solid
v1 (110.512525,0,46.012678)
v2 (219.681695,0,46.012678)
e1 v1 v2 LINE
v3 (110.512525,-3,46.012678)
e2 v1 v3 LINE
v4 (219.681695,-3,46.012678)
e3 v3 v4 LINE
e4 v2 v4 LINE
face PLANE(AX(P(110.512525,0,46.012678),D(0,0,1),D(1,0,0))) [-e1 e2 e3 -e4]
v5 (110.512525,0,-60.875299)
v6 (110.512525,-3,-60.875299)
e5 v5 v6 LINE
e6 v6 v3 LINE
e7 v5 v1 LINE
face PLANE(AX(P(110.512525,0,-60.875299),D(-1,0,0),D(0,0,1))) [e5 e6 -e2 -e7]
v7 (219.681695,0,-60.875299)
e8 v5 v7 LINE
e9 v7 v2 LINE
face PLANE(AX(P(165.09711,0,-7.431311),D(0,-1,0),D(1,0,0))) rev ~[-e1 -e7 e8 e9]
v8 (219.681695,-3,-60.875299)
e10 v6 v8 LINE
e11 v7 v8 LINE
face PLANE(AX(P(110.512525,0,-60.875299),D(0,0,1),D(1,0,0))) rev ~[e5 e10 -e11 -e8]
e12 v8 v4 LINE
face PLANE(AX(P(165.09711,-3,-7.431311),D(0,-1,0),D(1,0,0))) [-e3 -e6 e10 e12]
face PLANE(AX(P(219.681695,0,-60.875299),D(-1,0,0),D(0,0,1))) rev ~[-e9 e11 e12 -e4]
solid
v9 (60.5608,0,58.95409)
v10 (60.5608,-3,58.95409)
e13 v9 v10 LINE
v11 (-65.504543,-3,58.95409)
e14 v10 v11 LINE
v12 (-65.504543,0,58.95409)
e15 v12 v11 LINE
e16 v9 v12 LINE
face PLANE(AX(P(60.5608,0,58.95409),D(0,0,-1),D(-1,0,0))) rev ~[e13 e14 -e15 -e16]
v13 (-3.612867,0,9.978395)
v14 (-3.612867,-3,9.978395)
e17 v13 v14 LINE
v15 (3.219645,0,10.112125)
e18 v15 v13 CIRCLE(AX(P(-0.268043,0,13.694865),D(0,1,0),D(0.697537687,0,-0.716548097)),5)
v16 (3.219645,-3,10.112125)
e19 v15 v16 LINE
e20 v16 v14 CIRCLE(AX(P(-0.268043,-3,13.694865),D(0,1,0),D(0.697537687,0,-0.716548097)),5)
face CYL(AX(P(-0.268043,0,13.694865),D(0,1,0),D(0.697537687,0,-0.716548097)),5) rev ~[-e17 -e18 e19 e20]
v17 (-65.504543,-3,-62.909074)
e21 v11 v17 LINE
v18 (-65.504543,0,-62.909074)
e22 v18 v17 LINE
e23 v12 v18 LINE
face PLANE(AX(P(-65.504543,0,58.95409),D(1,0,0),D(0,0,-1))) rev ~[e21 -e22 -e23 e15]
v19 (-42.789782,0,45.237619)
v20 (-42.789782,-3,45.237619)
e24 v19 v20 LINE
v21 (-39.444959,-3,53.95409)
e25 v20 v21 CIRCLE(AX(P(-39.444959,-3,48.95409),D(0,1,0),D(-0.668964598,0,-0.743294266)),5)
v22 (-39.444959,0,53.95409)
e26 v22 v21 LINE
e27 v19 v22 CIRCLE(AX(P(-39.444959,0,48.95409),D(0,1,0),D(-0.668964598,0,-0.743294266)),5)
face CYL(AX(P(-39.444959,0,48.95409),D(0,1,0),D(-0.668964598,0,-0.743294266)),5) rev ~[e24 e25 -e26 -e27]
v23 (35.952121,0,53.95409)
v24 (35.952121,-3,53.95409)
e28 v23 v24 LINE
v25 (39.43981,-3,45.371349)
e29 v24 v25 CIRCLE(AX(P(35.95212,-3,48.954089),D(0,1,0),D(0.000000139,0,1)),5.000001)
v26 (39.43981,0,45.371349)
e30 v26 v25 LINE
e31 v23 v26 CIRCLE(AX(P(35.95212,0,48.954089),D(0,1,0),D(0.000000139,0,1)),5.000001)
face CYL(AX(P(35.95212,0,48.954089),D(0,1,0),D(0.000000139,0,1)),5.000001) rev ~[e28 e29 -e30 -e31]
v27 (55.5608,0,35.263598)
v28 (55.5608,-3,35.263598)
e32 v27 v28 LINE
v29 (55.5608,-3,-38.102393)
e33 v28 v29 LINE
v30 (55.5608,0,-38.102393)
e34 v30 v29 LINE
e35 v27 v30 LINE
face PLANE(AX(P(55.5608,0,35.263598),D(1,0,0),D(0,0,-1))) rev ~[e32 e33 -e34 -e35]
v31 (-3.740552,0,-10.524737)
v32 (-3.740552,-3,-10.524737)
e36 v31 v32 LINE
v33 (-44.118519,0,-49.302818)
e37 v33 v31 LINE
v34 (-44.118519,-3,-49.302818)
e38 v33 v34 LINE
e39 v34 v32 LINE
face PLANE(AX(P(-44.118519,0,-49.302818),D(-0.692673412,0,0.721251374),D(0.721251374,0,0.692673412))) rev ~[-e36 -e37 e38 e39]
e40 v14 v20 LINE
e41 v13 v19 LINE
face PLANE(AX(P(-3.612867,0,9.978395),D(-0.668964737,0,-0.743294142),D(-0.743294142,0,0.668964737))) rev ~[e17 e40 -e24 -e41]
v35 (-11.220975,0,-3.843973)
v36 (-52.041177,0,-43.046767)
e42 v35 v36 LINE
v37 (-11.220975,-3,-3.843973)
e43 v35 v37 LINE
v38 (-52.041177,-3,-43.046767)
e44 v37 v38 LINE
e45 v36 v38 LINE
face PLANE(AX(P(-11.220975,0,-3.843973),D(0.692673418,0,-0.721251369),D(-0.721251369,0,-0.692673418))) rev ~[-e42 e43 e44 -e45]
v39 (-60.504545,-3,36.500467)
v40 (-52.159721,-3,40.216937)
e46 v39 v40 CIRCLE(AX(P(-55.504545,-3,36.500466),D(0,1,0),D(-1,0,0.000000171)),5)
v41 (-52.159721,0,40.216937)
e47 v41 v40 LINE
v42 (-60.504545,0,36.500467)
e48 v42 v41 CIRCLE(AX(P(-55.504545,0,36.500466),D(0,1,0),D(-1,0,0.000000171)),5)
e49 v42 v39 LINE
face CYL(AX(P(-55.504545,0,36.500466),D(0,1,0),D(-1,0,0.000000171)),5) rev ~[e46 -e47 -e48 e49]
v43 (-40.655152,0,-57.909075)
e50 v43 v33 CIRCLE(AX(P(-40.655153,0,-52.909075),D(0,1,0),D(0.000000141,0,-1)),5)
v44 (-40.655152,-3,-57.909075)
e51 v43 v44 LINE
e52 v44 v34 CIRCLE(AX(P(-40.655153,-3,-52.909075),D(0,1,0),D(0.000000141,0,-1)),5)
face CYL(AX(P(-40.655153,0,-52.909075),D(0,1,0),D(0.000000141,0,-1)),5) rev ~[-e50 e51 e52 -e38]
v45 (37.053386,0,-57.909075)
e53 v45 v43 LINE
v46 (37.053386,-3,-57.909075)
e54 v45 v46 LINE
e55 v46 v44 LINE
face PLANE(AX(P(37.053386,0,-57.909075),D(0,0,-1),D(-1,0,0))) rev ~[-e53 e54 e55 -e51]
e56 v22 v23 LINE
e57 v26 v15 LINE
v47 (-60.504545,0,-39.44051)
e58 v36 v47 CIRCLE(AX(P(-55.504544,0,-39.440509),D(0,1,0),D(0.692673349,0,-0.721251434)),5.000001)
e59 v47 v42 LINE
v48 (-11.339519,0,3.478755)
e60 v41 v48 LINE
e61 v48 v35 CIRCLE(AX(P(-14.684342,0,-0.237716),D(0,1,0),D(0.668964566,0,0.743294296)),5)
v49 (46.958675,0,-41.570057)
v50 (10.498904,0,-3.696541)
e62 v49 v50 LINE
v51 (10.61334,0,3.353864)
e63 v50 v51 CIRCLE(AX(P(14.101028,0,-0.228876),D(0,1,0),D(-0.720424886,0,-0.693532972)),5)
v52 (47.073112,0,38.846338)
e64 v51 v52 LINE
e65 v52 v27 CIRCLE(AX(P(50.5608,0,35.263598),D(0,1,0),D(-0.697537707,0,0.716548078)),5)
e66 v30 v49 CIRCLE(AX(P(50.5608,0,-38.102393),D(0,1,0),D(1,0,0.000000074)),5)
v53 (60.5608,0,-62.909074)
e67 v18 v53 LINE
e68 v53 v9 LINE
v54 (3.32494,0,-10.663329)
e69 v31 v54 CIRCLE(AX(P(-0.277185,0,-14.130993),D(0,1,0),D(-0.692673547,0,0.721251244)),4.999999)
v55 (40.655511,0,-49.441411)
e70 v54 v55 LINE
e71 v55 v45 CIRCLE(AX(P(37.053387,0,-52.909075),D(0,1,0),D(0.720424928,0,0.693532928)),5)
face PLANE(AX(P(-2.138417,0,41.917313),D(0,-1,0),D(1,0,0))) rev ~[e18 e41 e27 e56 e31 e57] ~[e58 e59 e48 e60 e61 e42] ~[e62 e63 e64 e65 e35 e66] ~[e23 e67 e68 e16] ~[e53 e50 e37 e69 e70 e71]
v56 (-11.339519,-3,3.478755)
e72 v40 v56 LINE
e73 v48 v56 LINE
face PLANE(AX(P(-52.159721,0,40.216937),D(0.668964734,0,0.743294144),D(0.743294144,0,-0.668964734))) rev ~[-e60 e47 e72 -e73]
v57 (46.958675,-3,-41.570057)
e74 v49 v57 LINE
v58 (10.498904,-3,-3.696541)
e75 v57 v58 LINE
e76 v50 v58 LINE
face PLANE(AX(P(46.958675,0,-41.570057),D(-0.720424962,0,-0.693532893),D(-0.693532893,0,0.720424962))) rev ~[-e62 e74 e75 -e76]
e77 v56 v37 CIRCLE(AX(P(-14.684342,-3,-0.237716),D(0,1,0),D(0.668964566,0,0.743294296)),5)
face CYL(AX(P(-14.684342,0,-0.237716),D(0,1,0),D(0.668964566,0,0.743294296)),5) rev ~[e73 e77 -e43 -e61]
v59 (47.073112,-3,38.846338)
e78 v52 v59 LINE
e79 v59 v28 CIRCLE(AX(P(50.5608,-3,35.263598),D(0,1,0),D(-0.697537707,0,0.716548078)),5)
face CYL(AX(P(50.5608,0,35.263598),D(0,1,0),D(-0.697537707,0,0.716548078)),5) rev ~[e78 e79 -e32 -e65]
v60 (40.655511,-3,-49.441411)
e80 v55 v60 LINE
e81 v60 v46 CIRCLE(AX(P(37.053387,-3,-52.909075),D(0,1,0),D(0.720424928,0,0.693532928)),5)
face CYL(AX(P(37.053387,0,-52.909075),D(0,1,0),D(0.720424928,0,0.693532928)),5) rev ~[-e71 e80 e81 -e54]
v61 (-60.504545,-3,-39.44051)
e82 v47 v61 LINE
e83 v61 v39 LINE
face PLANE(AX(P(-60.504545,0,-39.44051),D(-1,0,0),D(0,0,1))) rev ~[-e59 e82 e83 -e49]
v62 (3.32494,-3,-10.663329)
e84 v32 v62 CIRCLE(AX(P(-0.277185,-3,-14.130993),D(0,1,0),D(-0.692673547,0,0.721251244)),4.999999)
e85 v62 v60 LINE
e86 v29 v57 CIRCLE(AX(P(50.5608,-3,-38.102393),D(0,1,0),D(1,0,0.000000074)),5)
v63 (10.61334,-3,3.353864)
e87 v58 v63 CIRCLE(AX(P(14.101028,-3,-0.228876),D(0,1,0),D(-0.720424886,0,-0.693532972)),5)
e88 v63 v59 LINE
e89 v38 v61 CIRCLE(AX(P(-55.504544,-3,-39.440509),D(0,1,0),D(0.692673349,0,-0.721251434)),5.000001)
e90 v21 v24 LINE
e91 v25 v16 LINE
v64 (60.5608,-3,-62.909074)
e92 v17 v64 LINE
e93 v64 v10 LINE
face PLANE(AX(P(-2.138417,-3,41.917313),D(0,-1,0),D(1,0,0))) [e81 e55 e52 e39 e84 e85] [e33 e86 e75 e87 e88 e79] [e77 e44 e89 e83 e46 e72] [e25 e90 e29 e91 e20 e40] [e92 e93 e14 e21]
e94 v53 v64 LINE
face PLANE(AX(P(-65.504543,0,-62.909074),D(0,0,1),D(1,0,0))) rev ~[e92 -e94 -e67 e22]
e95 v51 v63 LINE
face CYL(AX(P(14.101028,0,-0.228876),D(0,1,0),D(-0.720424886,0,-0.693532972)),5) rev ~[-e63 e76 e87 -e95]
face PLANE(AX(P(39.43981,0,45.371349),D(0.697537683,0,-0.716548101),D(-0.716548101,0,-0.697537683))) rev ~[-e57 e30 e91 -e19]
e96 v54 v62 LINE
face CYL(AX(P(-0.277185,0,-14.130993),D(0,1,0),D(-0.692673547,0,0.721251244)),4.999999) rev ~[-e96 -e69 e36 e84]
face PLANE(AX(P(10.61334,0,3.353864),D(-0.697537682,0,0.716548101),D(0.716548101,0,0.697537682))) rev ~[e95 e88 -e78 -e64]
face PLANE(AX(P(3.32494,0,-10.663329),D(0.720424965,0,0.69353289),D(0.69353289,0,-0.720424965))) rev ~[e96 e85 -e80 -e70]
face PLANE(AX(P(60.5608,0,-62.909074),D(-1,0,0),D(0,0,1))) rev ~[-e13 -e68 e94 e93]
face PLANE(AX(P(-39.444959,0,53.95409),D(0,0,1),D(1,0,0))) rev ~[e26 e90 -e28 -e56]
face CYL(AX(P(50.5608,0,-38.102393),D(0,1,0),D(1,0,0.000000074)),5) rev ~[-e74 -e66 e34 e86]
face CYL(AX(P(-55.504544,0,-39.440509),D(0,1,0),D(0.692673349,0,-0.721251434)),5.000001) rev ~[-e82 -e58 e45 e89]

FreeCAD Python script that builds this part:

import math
import FreeCAD as App
import Part
import Sketcher
from FreeCAD import Vector


def add_polygon(sketch, points):
    """Adds a closed chain of lines whose ends are joined by coincident constraints."""
    first, n = sketch.GeometryCount, len(points)
    for a, b in zip(points, points[1:] + points[:1]):
        sketch.addGeometry(Part.LineSegment(App.Vector(*a, 0), App.Vector(*b, 0)), False)
    for i in range(n):
        sketch.addConstraint(Sketcher.Constraint("Coincident", first + i, 2, first + (i + 1) % n, 1))

doc = App.newDocument("Part")
params = doc.addObject("Spreadsheet::Sheet", "Params")
for row, (alias, value) in enumerate([
    ("sketch1_radius", "5 mm"),
    ("pad1_length", "3 mm"),
    ("pad2_length", "3 mm"),
], start=1):
    params.set(f"A{row}", alias)
    params.set(f"B{row}", "=" + value)
    params.setAlias(f"B{row}", alias)

body = doc.addObject("PartDesign::Body", "Body")

# Sketch on XZ plane
sketch1 = doc.addObject("Sketcher::SketchObject", "Sketch")
body.addObject(sketch1)
sketch1.AttachmentSupport = (doc.XZ_Plane, [""])
sketch1.MapMode = "FlatFace"
add_polygon(sketch1, [(60.6, 59), (-65.5, 59), (-65.5, -62.9), (60.6, -62.9)])  # lines 0-3
sketch1.addGeometry(Part.ArcOfCircle(Part.Circle(Vector(37.1, -52.9, 0), Vector(0, 0, 1), 5), math.radians(-90), math.radians(44)), False)  # 4
sketch1.addGeometry(Part.LineSegment(Vector(37.1, -57.9, 0), Vector(-40.7, -57.9, 0)), False)  # 5
sketch1.addGeometry(Part.ArcOfCircle(Part.Circle(Vector(-40.7, -52.9, 0), Vector(0, 0, 1), 5), math.radians(134), math.radians(270)), False)  # 6
sketch1.addGeometry(Part.LineSegment(Vector(-44.1, -49.3, 0), Vector(-3.7, -10.5, 0)), False)  # 7
sketch1.addGeometry(Part.ArcOfCircle(Part.Circle(Vector(-0.3, -14.1, 0), Vector(0, 0, 1), 5), math.radians(44), math.radians(134)), False)  # 8
sketch1.addGeometry(Part.LineSegment(Vector(3.3, -10.7, 0), Vector(40.7, -49.4, 0)), False)  # 9
sketch1.addGeometry(Part.ArcOfCircle(Part.Circle(Vector(-55.5, -39.4, 0), Vector(0, 0, 1), 5), math.radians(-180), math.radians(-46)), False)  # 10
sketch1.addGeometry(Part.LineSegment(Vector(-60.5, -39.4, 0), Vector(-60.5, 36.5, 0)), False)  # 11
sketch1.addGeometry(Part.ArcOfCircle(Part.Circle(Vector(-55.5, 36.5, 0), Vector(0, 0, 1), 5), math.radians(48), math.radians(180)), False)  # 12
sketch1.addGeometry(Part.LineSegment(Vector(-52.2, 40.2, 0), Vector(-11.3, 3.5, 0)), False)  # 13
sketch1.addGeometry(Part.ArcOfCircle(Part.Circle(Vector(-14.7, -0.2, 0), Vector(0, 0, 1), 5), math.radians(-46), math.radians(48)), False)  # 14
sketch1.addGeometry(Part.LineSegment(Vector(-11.2, -3.8, 0), Vector(-52, -43, 0)), False)  # 15
sketch1.addGeometry(Part.LineSegment(Vector(10.6, 3.4, 0), Vector(47.1, 38.8, 0)), False)  # 16
sketch1.addGeometry(Part.ArcOfCircle(Part.Circle(Vector(50.6, 35.3, 0), Vector(0, 0, 1), 5), math.radians(0), math.radians(134)), False)  # 17
sketch1.addGeometry(Part.LineSegment(Vector(55.6, 35.3, 0), Vector(55.6, -38.1, 0)), False)  # 18
sketch1.addGeometry(Part.ArcOfCircle(Part.Circle(Vector(50.6, -38.1, 0), Vector(0, 0, 1), 5), math.radians(-136), math.radians(0)), False)  # 19
sketch1.addGeometry(Part.LineSegment(Vector(47, -41.6, 0), Vector(10.5, -3.7, 0)), False)  # 20
sketch1.addGeometry(Part.ArcOfCircle(Part.Circle(Vector(14.1, -0.2, 0), Vector(0, 0, 1), 5), math.radians(134), math.radians(224)), False)  # 21
sketch1.addGeometry(Part.LineSegment(Vector(-3.6, 10, 0), Vector(-42.8, 45.2, 0)), False)  # 22
sketch1.addGeometry(Part.ArcOfCircle(Part.Circle(Vector(-39.4, 49, 0), Vector(0, 0, 1), 5), math.radians(90), math.radians(228)), False)  # 23
sketch1.addGeometry(Part.LineSegment(Vector(-39.4, 54, 0), Vector(36, 54, 0)), False)  # 24
sketch1.addGeometry(Part.ArcOfCircle(Part.Circle(Vector(36, 49, 0), Vector(0, 0, 1), 5), math.radians(-46), math.radians(90)), False)  # 25
sketch1.addGeometry(Part.LineSegment(Vector(39.4, 45.4, 0), Vector(3.2, 10.1, 0)), False)  # 26
sketch1.addGeometry(Part.ArcOfCircle(Part.Circle(Vector(-0.3, 13.7, 0), Vector(0, 0, 1), 5), math.radians(-132), math.radians(-46)), False)  # 27
sketch1.addConstraint([
    Sketcher.Constraint("Tangent", 4, 1, 5, 1),
    Sketcher.Constraint("Tangent", 5, 2, 6, 2),
    Sketcher.Constraint("Tangent", 6, 1, 7, 1),
    Sketcher.Constraint("Tangent", 7, 2, 8, 2),
    Sketcher.Constraint("Tangent", 8, 1, 9, 1),
    Sketcher.Constraint("Tangent", 9, 2, 4, 2),
    Sketcher.Constraint("Tangent", 10, 1, 11, 1),
    Sketcher.Constraint("Tangent", 11, 2, 12, 2),
    Sketcher.Constraint("Tangent", 12, 1, 13, 1),
    Sketcher.Constraint("Tangent", 13, 2, 14, 2),
    Sketcher.Constraint("Tangent", 14, 1, 15, 1),
    Sketcher.Constraint("Tangent", 15, 2, 10, 2),
    Sketcher.Constraint("Tangent", 16, 2, 17, 2),
    Sketcher.Constraint("Tangent", 17, 1, 18, 1),
    Sketcher.Constraint("Tangent", 18, 2, 19, 2),
    Sketcher.Constraint("Tangent", 19, 1, 20, 1),
    Sketcher.Constraint("Tangent", 20, 2, 21, 2),
    Sketcher.Constraint("Tangent", 21, 1, 16, 1),
    Sketcher.Constraint("Tangent", 22, 2, 23, 2),
    Sketcher.Constraint("Tangent", 23, 1, 24, 1),
    Sketcher.Constraint("Tangent", 24, 2, 25, 2),
    Sketcher.Constraint("Tangent", 25, 1, 26, 1),
    Sketcher.Constraint("Tangent", 26, 2, 27, 2),
    Sketcher.Constraint("Tangent", 27, 1, 22, 1),
    Sketcher.Constraint("Horizontal", 0),
    Sketcher.Constraint("Vertical", 1),
    Sketcher.Constraint("Horizontal", 2),
    Sketcher.Constraint("Vertical", 3),
    Sketcher.Constraint("Horizontal", 5),
    Sketcher.Constraint("Vertical", 11),
    Sketcher.Constraint("Vertical", 18),
    Sketcher.Constraint("Horizontal", 24),
    Sketcher.Constraint("Equal", 4, 6),
    Sketcher.Constraint("Equal", 6, 8),
    Sketcher.Constraint("Equal", 8, 10),
    Sketcher.Constraint("Equal", 10, 12),
    Sketcher.Constraint("Equal", 12, 14),
    Sketcher.Constraint("Equal", 14, 17),
    Sketcher.Constraint("Equal", 17, 19),
    Sketcher.Constraint("Equal", 19, 21),
    Sketcher.Constraint("Equal", 21, 23),
    Sketcher.Constraint("Equal", 23, 25),
    Sketcher.Constraint("Equal", 25, 27),
    Sketcher.Constraint("Parallel", 7, 15),
    Sketcher.Constraint("Parallel", 9, 20),
    Sketcher.Constraint("Parallel", 13, 22),
    Sketcher.Constraint("Parallel", 16, 26),
    Sketcher.Constraint("Radius", 4, 5.0),
    Sketcher.Constraint("DistanceX", 0, 2, 12, 3, 9.999998),
    Sketcher.Constraint("DistanceY", 23, 3, 0, 2, 10.0),
    Sketcher.Constraint("DistanceY", 1, 2, 6, 3, 9.999999),
    Sketcher.Constraint("DistanceX", 19, 3, 2, 2, 10.0),
    Sketcher.Constraint("DistanceY", 21, 1, 27, 3, 10.341001),
    Sketcher.Constraint("DistanceX", 5, 2, 5, 1, 77.708538),
    Sketcher.Constraint("DistanceX", 24, 1, 24, 2, 75.39708),
    Sketcher.Constraint("DistanceY", 18, 2, 18, 1, 73.365991),
    Sketcher.Constraint("DistanceX", -1, 1, 17, 3, 50.5608),
    Sketcher.Constraint("DistanceY", -1, 1, 17, 1, 35.263598),
    Sketcher.Constraint("DistanceY", 19, 3, 8, 3, 23.971401),
    Sketcher.Constraint("DistanceY", 4, 3, 21, 3, 52.680199),
    Sketcher.Constraint("DistanceY", 10, 3, 23, 3, 88.394599),
    Sketcher.Constraint("DistanceX", 14, 3, 27, 3, 14.416298),
    Sketcher.Constraint("DistanceX", 0, 2, 14, 3, 50.820201),
    Sketcher.Constraint("DistanceY", 27, 3, 11, 2, 22.805602),
    Sketcher.Constraint("DistanceX", 8, 1, 21, 1, 7.2884),
    Sketcher.Constraint("DistanceY", 7, 2, 21, 1, 13.878601),
    Sketcher.Constraint("DistanceX", 25, 1, 16, 2, 7.633302),
    Sketcher.Constraint("Distance", 7, 55.98321),
])
sketch1.setExpression("Constraints[51]", "Params.sketch1_radius")
pad1 = doc.addObject("PartDesign::Pad", "Pad")
body.addObject(pad1)
pad1.Profile = sketch1
pad1.setExpression("Length", "Params.pad1_length")
body2 = doc.addObject("PartDesign::Body", "Body001")

# Sketch on XZ plane
sketch2 = doc.addObject("Sketcher::SketchObject", "Sketch001")
body2.addObject(sketch2)
sketch2.AttachmentSupport = (doc.getObject("XZ_Plane001"), [""])
sketch2.MapMode = "FlatFace"
add_polygon(sketch2, [(111, 46), (111, -61), (220, -61), (220, 46)])  # lines 0-3
sketch2.addConstraint([
    Sketcher.Constraint("Vertical", 0),
    Sketcher.Constraint("Horizontal", 1),
    Sketcher.Constraint("Vertical", 2),
    Sketcher.Constraint("Horizontal", 3),
    Sketcher.Constraint("DistanceX", 1, 1, 1, 2, 109.16917),
    Sketcher.Constraint("DistanceY", 0, 2, -1, 1, 60.875299),
    Sketcher.Constraint("DistanceY", 0, 2, 0, 1, 106.887977),
    Sketcher.Constraint("DistanceX", -1, 1, 0, 2, 110.512525),
])
pad2 = doc.addObject("PartDesign::Pad", "Pad001")
body2.addObject(pad2)
pad2.Profile = sketch2
pad2.setExpression("Length", "Params.pad2_length")

doc.recompute()
